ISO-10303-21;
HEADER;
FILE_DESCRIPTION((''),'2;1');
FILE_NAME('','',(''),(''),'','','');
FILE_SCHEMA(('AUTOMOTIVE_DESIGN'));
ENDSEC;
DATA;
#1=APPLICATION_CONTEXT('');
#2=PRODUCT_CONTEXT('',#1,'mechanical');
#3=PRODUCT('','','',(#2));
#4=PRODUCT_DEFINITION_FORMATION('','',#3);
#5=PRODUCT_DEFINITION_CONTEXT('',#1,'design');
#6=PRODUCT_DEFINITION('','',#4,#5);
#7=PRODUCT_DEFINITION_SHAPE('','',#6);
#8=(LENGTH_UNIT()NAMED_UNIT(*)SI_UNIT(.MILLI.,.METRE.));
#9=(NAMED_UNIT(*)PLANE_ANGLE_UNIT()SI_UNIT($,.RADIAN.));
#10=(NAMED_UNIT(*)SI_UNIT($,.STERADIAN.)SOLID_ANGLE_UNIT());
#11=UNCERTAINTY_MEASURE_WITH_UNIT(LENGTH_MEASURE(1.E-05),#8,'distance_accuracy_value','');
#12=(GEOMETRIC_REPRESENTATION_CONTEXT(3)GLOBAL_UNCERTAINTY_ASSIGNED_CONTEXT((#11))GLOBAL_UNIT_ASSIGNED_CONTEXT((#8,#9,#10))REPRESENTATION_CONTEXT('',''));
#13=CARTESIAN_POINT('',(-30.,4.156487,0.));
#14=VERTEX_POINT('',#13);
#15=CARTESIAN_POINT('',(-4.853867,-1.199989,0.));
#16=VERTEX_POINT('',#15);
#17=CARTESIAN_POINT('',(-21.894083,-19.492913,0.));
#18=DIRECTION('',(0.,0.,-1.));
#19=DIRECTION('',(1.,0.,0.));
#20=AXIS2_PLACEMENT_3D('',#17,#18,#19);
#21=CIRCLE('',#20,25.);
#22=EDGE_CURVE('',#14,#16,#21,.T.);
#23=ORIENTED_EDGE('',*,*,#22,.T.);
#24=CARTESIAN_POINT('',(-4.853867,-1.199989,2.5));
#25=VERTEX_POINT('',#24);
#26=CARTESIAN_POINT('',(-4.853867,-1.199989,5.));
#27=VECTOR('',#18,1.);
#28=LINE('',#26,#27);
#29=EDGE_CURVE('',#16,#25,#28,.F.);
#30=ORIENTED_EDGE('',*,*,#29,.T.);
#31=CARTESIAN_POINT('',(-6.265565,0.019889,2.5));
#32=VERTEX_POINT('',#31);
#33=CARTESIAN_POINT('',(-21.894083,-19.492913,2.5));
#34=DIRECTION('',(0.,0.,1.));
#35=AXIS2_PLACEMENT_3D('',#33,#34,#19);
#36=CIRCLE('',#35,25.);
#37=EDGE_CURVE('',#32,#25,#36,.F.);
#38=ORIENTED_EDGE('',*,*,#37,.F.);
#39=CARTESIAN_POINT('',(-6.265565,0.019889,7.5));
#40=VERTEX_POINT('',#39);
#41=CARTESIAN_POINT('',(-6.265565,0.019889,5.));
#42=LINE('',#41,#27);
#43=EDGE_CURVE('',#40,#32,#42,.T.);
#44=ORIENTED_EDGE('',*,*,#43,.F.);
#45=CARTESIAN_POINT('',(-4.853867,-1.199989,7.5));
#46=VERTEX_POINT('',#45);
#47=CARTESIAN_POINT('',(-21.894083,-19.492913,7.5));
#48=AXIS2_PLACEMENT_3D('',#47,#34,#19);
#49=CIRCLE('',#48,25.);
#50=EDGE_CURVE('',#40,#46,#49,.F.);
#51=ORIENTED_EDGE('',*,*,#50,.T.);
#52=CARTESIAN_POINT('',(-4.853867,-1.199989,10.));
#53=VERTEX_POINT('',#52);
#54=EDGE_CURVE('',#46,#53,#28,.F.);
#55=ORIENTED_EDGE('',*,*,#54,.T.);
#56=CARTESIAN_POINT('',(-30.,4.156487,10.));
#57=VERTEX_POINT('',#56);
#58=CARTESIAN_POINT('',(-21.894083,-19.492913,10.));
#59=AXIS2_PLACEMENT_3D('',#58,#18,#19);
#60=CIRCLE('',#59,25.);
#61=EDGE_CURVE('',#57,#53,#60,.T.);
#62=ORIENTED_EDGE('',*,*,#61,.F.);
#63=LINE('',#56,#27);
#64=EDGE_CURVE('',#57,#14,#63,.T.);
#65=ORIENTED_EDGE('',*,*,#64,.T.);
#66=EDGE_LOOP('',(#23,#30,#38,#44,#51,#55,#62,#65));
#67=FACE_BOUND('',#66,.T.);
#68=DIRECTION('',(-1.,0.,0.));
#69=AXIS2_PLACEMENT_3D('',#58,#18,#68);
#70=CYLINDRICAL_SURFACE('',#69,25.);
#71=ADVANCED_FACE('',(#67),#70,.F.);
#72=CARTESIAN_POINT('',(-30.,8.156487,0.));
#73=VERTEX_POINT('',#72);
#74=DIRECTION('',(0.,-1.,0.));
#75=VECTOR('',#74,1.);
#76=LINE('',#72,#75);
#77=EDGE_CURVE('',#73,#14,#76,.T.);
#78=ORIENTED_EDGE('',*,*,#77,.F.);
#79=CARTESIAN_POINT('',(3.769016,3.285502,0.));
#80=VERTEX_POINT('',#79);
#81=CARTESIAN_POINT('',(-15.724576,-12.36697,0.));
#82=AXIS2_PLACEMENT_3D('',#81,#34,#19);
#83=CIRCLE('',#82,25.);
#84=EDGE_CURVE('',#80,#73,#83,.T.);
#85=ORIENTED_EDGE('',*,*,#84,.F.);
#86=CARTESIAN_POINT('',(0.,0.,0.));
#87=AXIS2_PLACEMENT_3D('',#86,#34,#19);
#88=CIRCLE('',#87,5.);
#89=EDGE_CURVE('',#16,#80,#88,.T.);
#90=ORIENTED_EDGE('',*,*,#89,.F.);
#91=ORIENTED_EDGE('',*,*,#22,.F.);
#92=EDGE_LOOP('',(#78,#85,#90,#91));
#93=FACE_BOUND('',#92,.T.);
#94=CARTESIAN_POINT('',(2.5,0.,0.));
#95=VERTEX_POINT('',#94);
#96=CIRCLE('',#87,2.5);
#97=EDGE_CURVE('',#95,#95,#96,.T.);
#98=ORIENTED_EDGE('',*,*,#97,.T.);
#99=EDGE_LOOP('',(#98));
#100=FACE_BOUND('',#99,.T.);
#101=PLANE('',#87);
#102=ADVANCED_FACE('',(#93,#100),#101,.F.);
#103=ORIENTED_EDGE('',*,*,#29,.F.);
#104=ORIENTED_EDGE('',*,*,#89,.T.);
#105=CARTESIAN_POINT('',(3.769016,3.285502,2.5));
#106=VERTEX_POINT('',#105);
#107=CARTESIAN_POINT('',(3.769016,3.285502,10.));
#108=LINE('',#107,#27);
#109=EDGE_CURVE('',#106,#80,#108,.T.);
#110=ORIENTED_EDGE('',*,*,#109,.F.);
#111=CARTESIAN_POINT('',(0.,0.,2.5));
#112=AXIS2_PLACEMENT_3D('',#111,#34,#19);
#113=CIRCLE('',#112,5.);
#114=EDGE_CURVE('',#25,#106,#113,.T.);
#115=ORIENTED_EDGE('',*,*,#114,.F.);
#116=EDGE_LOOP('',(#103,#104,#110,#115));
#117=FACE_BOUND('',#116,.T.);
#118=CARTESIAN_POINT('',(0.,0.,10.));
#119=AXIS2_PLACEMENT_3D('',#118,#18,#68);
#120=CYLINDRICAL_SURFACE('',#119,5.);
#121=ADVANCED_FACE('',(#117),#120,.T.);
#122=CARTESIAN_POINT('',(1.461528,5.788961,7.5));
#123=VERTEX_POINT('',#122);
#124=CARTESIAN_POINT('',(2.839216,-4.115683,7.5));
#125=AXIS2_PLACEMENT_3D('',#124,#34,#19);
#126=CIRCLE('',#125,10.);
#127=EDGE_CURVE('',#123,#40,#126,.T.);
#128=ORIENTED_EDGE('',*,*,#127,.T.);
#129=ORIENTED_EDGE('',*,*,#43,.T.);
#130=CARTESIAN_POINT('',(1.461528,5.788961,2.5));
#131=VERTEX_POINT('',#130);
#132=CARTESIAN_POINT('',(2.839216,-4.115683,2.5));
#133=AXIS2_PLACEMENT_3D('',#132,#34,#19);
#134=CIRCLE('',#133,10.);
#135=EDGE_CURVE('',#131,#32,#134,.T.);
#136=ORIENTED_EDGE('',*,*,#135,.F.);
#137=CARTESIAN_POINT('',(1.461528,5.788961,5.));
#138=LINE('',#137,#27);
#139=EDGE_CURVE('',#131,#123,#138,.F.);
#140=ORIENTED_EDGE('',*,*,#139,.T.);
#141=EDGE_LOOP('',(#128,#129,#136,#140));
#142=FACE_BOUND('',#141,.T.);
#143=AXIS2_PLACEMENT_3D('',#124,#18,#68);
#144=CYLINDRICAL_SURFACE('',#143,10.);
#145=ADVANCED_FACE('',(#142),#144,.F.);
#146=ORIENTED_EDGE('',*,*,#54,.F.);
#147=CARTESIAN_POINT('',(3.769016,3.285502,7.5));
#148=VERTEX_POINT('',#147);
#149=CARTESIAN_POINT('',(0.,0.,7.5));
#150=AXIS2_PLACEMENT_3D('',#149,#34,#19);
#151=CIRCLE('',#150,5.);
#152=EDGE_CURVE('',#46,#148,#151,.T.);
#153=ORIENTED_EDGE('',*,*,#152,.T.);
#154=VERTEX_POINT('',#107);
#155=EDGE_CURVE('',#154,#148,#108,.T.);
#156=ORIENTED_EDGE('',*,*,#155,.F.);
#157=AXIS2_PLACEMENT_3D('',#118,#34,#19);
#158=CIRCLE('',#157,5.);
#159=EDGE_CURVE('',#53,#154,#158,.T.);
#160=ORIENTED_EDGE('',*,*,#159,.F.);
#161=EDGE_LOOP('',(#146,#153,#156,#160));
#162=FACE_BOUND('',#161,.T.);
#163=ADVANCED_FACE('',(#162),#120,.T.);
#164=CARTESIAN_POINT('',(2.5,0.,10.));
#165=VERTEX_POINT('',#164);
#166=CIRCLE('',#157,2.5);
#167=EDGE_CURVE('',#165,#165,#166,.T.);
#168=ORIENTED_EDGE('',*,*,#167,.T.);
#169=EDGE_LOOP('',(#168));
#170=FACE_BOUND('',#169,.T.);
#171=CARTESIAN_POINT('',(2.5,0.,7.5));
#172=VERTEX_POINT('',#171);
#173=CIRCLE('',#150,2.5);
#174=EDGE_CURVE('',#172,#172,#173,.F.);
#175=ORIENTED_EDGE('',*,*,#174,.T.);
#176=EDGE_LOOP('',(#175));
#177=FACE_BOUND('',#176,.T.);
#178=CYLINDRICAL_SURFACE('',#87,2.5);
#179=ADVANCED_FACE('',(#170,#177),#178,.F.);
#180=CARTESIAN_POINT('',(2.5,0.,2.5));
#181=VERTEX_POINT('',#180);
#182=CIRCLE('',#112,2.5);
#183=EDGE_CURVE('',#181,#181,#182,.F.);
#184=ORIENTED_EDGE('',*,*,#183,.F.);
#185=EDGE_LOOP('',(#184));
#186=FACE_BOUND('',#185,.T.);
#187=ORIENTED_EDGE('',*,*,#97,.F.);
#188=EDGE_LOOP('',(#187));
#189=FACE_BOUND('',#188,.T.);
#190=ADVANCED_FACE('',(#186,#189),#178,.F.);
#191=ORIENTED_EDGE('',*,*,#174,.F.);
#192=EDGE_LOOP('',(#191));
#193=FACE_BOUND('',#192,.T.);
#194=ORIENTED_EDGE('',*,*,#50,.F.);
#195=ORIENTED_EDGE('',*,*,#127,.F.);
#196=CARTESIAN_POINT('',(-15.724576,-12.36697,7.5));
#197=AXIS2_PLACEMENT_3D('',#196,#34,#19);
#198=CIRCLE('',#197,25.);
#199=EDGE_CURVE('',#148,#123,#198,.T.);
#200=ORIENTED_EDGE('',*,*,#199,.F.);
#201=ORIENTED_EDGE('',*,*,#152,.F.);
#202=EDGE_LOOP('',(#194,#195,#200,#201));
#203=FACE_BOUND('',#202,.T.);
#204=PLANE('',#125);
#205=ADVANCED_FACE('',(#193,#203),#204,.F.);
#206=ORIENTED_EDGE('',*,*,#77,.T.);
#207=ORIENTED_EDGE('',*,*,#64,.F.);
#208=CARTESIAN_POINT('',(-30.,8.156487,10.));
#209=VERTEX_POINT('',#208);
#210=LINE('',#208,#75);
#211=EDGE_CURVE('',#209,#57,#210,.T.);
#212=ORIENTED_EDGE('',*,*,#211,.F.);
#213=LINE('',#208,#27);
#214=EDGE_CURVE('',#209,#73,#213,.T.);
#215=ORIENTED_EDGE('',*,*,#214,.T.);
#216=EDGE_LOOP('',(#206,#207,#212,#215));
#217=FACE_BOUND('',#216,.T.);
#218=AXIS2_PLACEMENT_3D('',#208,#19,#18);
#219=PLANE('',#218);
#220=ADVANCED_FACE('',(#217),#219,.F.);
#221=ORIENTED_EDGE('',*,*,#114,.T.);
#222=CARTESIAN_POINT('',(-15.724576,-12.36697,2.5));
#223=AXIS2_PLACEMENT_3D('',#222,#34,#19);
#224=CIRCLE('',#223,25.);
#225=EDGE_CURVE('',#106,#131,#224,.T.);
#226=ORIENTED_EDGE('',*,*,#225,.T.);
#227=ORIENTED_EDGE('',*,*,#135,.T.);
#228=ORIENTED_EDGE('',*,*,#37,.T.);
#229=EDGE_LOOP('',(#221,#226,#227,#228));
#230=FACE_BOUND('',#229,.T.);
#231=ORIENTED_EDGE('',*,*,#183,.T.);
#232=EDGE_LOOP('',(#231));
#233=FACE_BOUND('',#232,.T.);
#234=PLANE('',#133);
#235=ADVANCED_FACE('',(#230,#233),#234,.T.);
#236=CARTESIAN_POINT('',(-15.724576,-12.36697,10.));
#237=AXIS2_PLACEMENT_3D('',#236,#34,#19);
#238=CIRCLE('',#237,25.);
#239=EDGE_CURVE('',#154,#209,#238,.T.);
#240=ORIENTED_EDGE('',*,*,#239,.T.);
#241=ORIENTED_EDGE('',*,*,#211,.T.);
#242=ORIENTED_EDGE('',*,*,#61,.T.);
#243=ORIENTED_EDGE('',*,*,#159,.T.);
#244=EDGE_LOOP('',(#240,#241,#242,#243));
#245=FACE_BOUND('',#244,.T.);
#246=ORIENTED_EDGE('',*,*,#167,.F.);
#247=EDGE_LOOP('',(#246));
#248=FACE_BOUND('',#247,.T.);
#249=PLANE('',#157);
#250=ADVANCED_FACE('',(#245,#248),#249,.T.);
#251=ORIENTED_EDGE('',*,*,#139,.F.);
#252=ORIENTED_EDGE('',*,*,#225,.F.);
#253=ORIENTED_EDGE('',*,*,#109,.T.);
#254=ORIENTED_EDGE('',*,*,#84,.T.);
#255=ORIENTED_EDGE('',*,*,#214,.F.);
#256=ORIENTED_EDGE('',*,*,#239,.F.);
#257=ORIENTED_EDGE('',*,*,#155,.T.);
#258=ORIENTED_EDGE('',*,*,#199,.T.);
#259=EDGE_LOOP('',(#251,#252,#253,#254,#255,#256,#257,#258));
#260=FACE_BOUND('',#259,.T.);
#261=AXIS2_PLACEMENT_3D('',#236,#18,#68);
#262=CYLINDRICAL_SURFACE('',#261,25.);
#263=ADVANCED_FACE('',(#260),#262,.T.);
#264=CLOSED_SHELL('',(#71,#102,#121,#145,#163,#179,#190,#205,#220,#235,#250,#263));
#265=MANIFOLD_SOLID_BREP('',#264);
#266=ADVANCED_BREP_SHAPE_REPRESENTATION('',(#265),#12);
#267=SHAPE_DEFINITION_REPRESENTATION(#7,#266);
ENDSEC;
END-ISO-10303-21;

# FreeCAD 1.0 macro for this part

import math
import FreeCAD as App
import Part
import Sketcher
Q = App.Units.Quantity

doc = App.newDocument("Part")
body = doc.addObject("PartDesign::Body", "Body")

# Sketch on XY plane
sketch1 = body.newObject("Sketcher::SketchObject", "Sketch")
sketch1.AttachmentSupport = (doc.getObject("XY_Plane"), [""])
sketch1.MapMode = "FlatFace"
sketch1.addGeometry(Part.Circle(App.Vector(0, 0, 0), App.Vector(0, 0, 1), 5), False)
sketch1.addConstraint(Sketcher.Constraint("Coincident", 0, 3, -1, 1))
sketch1.addConstraint(Sketcher.Constraint("Diameter", 0, Q("10 mm")))
pad1 = body.newObject("PartDesign::Pad", "Pad")
pad1.Profile = sketch1
pad1.Length = 10

# Sketch on XY plane
sketch2 = body.newObject("Sketcher::SketchObject", "Sketch001")
sketch2.AttachmentSupport = (doc.getObject("XY_Plane"), [""])
sketch2.MapMode = "FlatFace"
sketch2.AttachmentOffset = App.Placement(App.Vector(0, 0, 10), App.Rotation())
sketch2.addGeometry(Part.Circle(App.Vector(0, 0, 0), App.Vector(0, 0, 1), 2.5), False)
sketch2.addConstraint(Sketcher.Constraint("Coincident", 0, 3, -1, 1))
sketch2.addConstraint(Sketcher.Constraint("Diameter", 0, Q("5 mm")))
pocket1 = body.newObject("PartDesign::Pocket", "Pocket")
pocket1.Profile = sketch2
pocket1.Type = "ThroughAll"

# Sketch on XY plane
sketch3 = body.newObject("Sketcher::SketchObject", "Sketch002")
sketch3.AttachmentSupport = (doc.getObject("XY_Plane"), [""])
sketch3.MapMode = "FlatFace"
sketch3.addGeometry(Part.LineSegment(App.Vector(-30, 8.2, 0), App.Vector(-30, 4.2, 0)), False)
sketch3.addGeometry(Part.ArcOfCircle(Part.Circle(App.Vector(-21.9, -19.5, 0), App.Vector(0, 0, 1), 25), math.radians(47), math.radians(109)), False)
sketch3.addGeometry(Part.LineSegment(App.Vector(-4.8, -1.2, 0), App.Vector(3.8, 3.3, 0)), False)
sketch3.addGeometry(Part.ArcOfCircle(Part.Circle(App.Vector(-15.7, -12.4, 0), App.Vector(0, 0, 1), 25), math.radians(39), math.radians(125)), False)
sketch3.addConstraint(Sketcher.Constraint("Coincident", 0, 2, 1, 2))
sketch3.addConstraint(Sketcher.Constraint("Coincident", 1, 1, 2, 1))
sketch3.addConstraint(Sketcher.Constraint("Coincident", 2, 2, 3, 1))
sketch3.addConstraint(Sketcher.Constraint("Coincident", 3, 2, 0, 1))
sketch3.addConstraint(Sketcher.Constraint("Vertical", 0))
sketch3.addConstraint(Sketcher.Constraint("Equal", 1, 3))
sketch3.addConstraint(Sketcher.Constraint("Radius", 1, Q("25 mm")))
sketch3.addConstraint(Sketcher.Constraint("DistanceY", 0, 2, 0, 1, Q("4 mm")))
sketch3.addConstraint(Sketcher.Constraint("DistanceX", 0, 2, -1, 1, Q("30 mm")))
sketch3.addConstraint(Sketcher.Constraint("DistanceY", -1, 1, 2, 2, Q("3.285502 mm")))
sketch3.addConstraint(Sketcher.Constraint("DistanceY", 1, 3, 0, 2, Q("23.6494 mm")))
sketch3.addConstraint(Sketcher.Constraint("DistanceX", 1, 3, 2, 2, Q("25.663098 mm")))
sketch3.addConstraint(Sketcher.Constraint("DistanceY", 3, 3, -1, 1, Q("12.36697 mm")))
sketch3.addConstraint(Sketcher.Constraint("DistanceX", 1, 1, -1, 1, Q("4.84586 mm")))
pad2 = body.newObject("PartDesign::Pad", "Pad001")
pad2.Profile = sketch3
pad2.Length = 10

# Sketch on XY plane
sketch4 = body.newObject("Sketcher::SketchObject", "Sketch003")
sketch4.AttachmentSupport = (doc.getObject("XY_Plane"), [""])
sketch4.MapMode = "FlatFace"
sketch4.AttachmentOffset = App.Placement(App.Vector(0, 0, 10), App.Rotation())
sketch4.addGeometry(Part.Circle(App.Vector(0, 0, 0), App.Vector(0, 0, 1), 2.5), False)
sketch4.addConstraint(Sketcher.Constraint("Coincident", 0, 3, -1, 1))
sketch4.addConstraint(Sketcher.Constraint("Diameter", 0, Q("5 mm")))
pocket2 = body.newObject("PartDesign::Pocket", "Pocket001")
pocket2.Profile = sketch4
pocket2.Type = "ThroughAll"

# Sketch on XY plane
sketch5 = body.newObject("Sketcher::SketchObject", "Sketch004")
sketch5.AttachmentSupport = (doc.getObject("XY_Plane"), [""])
sketch5.MapMode = "FlatFace"
sketch5.AttachmentOffset = App.Placement(App.Vector(0, 0, 5), App.Rotation())
sketch5.addGeometry(Part.Circle(App.Vector(3, -4, 0), App.Vector(0, 0, 1), 10), False)
sketch5.addConstraint(Sketcher.Constraint("Diameter", 0, Q("20 mm")))
sketch5.addConstraint(Sketcher.Constraint("DistanceX", -1, 1, 0, 3, Q("2.839216 mm")))
sketch5.addConstraint(Sketcher.Constraint("DistanceY", 0, 3, -1, 1, Q("4.115683 mm")))
pocket3 = body.newObject("PartDesign::Pocket", "Pocket002")
pocket3.Profile = sketch5
pocket3.Type = "TwoLengths"
pocket3.Length = 2.5
pocket3.Length2 = 2.5
pocket3.Reversed = True

doc.recompute()
